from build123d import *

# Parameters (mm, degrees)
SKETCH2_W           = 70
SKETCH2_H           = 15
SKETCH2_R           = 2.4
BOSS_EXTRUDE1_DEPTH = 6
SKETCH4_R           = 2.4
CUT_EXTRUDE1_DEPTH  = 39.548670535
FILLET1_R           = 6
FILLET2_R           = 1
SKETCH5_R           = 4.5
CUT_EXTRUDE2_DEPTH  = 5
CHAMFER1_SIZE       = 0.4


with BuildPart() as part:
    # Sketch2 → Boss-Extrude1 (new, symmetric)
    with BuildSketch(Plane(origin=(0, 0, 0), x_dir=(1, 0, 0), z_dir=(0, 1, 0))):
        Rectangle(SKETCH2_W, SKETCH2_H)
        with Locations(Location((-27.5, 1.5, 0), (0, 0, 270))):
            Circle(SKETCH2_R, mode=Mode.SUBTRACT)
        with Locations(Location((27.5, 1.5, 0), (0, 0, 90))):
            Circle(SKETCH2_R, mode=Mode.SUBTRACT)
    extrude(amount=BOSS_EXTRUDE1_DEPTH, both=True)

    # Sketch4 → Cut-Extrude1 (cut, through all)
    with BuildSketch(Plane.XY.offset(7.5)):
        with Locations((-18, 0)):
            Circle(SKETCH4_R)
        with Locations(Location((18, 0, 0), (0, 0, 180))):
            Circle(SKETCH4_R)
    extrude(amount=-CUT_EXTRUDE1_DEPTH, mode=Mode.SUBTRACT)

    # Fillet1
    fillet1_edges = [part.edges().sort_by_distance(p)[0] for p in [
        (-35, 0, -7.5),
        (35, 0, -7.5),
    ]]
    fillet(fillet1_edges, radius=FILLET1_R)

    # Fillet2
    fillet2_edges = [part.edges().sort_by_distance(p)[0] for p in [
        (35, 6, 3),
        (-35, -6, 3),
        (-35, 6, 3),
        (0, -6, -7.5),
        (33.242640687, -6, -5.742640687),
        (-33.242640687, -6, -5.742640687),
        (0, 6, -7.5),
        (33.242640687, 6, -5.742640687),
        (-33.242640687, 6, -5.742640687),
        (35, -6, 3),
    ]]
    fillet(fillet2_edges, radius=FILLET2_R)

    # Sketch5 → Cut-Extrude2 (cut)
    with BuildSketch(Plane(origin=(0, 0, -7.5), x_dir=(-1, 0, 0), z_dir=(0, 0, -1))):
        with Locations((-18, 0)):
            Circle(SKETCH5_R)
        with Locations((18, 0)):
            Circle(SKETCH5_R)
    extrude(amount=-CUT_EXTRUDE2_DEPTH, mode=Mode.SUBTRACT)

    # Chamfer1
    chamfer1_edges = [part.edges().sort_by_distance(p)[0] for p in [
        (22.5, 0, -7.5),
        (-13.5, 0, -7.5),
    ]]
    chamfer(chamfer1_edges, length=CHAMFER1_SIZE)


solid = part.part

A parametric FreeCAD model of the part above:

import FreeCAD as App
import Part
import Sketcher
Q = App.Units.Quantity


def edges_at(feature, points):
    """Names of the edges that pass closest to the given points."""
    edges = feature.Shape.Edges
    near = lambda p: min(range(len(edges)), key=lambda i: edges[i].distToShape(Part.Vertex(*p))[0])
    return sorted({f"Edge{near(p) + 1}" for p in points})

doc = App.newDocument("Part")
body = doc.addObject("PartDesign::Body", "Body")

# Sketch on XZ plane
sketch1 = body.newObject("Sketcher::SketchObject", "Sketch")
sketch1.AttachmentSupport = (doc.getObject("XZ_Plane"), [""])
sketch1.MapMode = "FlatFace"
sketch1.addGeometry(Part.LineSegment(App.Vector(-35, -7.5, 0), App.Vector(-35, 7.5, 0)), False)
sketch1.addGeometry(Part.LineSegment(App.Vector(-35, 7.5, 0), App.Vector(35, 7.5, 0)), False)
sketch1.addGeometry(Part.LineSegment(App.Vector(35, 7.5, 0), App.Vector(35, -7.5, 0)), False)
sketch1.addGeometry(Part.LineSegment(App.Vector(35, -7.5, 0), App.Vector(-35, -7.5, 0)), False)
sketch1.addGeometry(Part.Circle(App.Vector(-27.5, -1.5, 0), App.Vector(0, 0, 1), 2.4), False)
sketch1.addGeometry(Part.Circle(App.Vector(27.5, -1.5, 0), App.Vector(0, 0, 1), 2.4), False)
sketch1.addConstraint(Sketcher.Constraint("Coincident", 0, 2, 1, 1))
sketch1.addConstraint(Sketcher.Constraint("Coincident", 1, 2, 2, 1))
sketch1.addConstraint(Sketcher.Constraint("Coincident", 2, 2, 3, 1))
sketch1.addConstraint(Sketcher.Constraint("Coincident", 3, 2, 0, 1))
sketch1.addConstraint(Sketcher.Constraint("Vertical", 0))
sketch1.addConstraint(Sketcher.Constraint("Horizontal", 1))
sketch1.addConstraint(Sketcher.Constraint("Vertical", 2))
sketch1.addConstraint(Sketcher.Constraint("Horizontal", 3))
sketch1.addConstraint(Sketcher.Constraint("Equal", 4, 5))
sketch1.addConstraint(Sketcher.Constraint("Symmetric", 0, 2, 2, 2, -1, 1))
sketch1.addConstraint(Sketcher.Constraint("Symmetric", 4, 3, 5, 3, -2))
sketch1.addConstraint(Sketcher.Constraint("Diameter", 4, Q("4.8 mm")))
sketch1.addConstraint(Sketcher.Constraint("DistanceX", 1, 1, 1, 2, Q("70 mm")))
sketch1.addConstraint(Sketcher.Constraint("DistanceY", 0, 1, 0, 2, Q("15 mm")))
sketch1.addConstraint(Sketcher.Constraint("DistanceX", 4, 3, 5, 3, Q("55 mm")))
sketch1.addConstraint(Sketcher.Constraint("DistanceY", 4, 3, 0, 2, Q("9 mm")))
pad1 = body.newObject("PartDesign::Pad", "Pad")
pad1.Profile = sketch1
pad1.Length = 12
pad1.Midplane = True

# Sketch on XY plane
sketch2 = body.newObject("Sketcher::SketchObject", "Sketch001")
sketch2.AttachmentSupport = (doc.getObject("XY_Plane"), [""])
sketch2.MapMode = "FlatFace"
sketch2.AttachmentOffset = App.Placement(App.Vector(0, 0, 7.5), App.Rotation())
sketch2.addGeometry(Part.Circle(App.Vector(-18, 0, 0), App.Vector(0, 0, 1), 2.4), False)
sketch2.addGeometry(Part.Circle(App.Vector(18, 0, 0), App.Vector(0, 0, 1), 2.4), False)
sketch2.addConstraint(Sketcher.Constraint("Equal", 0, 1))
sketch2.addConstraint(Sketcher.Constraint("Symmetric", 0, 3, 1, 3, -1, 1))
sketch2.addConstraint(Sketcher.Constraint("PointOnObject", 0, 3, -1))
sketch2.addConstraint(Sketcher.Constraint("Diameter", 0, Q("4.8 mm")))
sketch2.addConstraint(Sketcher.Constraint("DistanceX", 0, 3, -1, 1, Q("18 mm")))
pocket1 = body.newObject("PartDesign::Pocket", "Pocket")
pocket1.Profile = sketch2
pocket1.Type = "ThroughAll"
doc.recompute()

fillet = body.newObject("PartDesign::Fillet", "Fillet")
fillet.Base = (pocket1, edges_at(pocket1, [(-35, 0, -7.5), (35, 0, -7.5)]))
fillet.Radius = 6
doc.recompute()

fillet2 = body.newObject("PartDesign::Fillet", "Fillet001")
fillet2.Base = (fillet, edges_at(fillet, [
    (35, 6, 3),
    (-35, -6, 3),
    (-35, 6, 3),
    (0, -6, -7.5),
    (33.243, -6, -5.743),
    (-33.243, -6, -5.743),
    (0, 6, -7.5),
    (33.243, 6, -5.743),
    (-33.243, 6, -5.743),
    (35, -6, 3),
]))
fillet2.Radius = 1

# Sketch on XY plane
sketch3 = body.newObject("Sketcher::SketchObject", "Sketch002")
sketch3.AttachmentSupport = (doc.getObject("XY_Plane"), [""])
sketch3.MapMode = "FlatFace"
sketch3.AttachmentOffset = App.Placement(App.Vector(0, 0, -7.5), App.Rotation())
sketch3.addGeometry(Part.Circle(App.Vector(18, 0, 0), App.Vector(0, 0, 1), 4.5), False)
sketch3.addGeometry(Part.Circle(App.Vector(-18, 0, 0), App.Vector(0, 0, 1), 4.5), False)
sketch3.addConstraint(Sketcher.Constraint("Equal", 0, 1))
sketch3.addConstraint(Sketcher.Constraint("Symmetric", 0, 3, 1, 3, -1, 1))
sketch3.addConstraint(Sketcher.Constraint("PointOnObject", 0, 3, -1))
sketch3.addConstraint(Sketcher.Constraint("Diameter", 0, Q("9 mm")))
sketch3.addConstraint(Sketcher.Constraint("DistanceX", -1, 1, 0, 3, Q("18 mm")))
pocket2 = body.newObject("PartDesign::Pocket", "Pocket001")
pocket2.Profile = sketch3
pocket2.Length = 5
pocket2.Reversed = True
doc.recompute()

chamfer = body.newObject("PartDesign::Chamfer", "Chamfer")
chamfer.Base = (pocket2, edges_at(pocket2, [(22.5, 0, -7.5), (-13.5, 0, -7.5)]))
chamfer.Size = 0.4

doc.recompute()
